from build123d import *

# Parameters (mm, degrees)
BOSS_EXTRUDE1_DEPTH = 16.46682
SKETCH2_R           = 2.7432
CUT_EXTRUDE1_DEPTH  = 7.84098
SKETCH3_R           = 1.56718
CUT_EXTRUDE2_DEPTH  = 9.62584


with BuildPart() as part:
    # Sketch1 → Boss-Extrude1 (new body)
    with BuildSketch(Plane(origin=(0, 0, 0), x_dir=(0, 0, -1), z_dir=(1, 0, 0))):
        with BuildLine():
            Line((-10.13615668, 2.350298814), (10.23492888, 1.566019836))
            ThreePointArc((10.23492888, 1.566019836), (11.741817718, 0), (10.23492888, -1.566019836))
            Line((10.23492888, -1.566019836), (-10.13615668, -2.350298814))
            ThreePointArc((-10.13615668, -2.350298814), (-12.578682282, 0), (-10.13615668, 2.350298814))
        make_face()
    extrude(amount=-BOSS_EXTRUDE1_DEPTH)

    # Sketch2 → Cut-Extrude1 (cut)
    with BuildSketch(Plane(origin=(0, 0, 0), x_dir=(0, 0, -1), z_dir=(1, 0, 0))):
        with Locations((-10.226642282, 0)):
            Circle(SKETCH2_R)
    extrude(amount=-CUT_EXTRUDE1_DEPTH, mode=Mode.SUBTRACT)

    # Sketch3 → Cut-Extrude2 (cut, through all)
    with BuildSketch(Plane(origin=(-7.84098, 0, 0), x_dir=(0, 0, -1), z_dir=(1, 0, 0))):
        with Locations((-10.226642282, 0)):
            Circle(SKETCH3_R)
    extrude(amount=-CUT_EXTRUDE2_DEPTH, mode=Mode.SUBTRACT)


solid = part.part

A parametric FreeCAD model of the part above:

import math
import FreeCAD as App
import Part
import Sketcher
Q = App.Units.Quantity

doc = App.newDocument("Part")
body = doc.addObject("PartDesign::Body", "Body")

# Sketch on YZ plane
sketch1 = body.newObject("Sketcher::SketchObject", "Sketch")
sketch1.AttachmentSupport = (doc.getObject("YZ_Plane"), [""])
sketch1.MapMode = "FlatFace"
sketch1.addGeometry([
    Part.LineSegment(App.Vector(1.6, -10.2, 0), App.Vector(2.4, 10.1, 0)),
    Part.ArcOfCircle(Part.Circle(App.Vector(0, 10.2, 0), App.Vector(0, 0, 1), 2.4), math.radians(-2), math.radians(182)),
    Part.LineSegment(App.Vector(-2.4, 10.1, 0), App.Vector(-1.6, -10.2, 0)),
    Part.ArcOfCircle(Part.Circle(App.Vector(0, -10.2, 0), App.Vector(0, 0, 1), 1.6), math.radians(-178), math.radians(-2)),
], False)
sketch1.addConstraint([
    Sketcher.Constraint("Tangent", 0, 2, 1, 1),
    Sketcher.Constraint("Tangent", 1, 2, 2, 1),
    Sketcher.Constraint("Tangent", 2, 2, 3, 1),
    Sketcher.Constraint("Tangent", 3, 2, 0, 1),
    Sketcher.Constraint("Symmetric", 0, 2, 1, 2, -2),
    Sketcher.Constraint("Radius", 1, Q("0.0926 in")),
    Sketcher.Constraint("Radius", 3, Q("0.0617 in")),
    Sketcher.Constraint("DistanceY", 3, 3, 1, 3, Q("0.8032 in")),
    Sketcher.Constraint("DistanceY", 2, 2, -1, 1, Q("10.234929 mm")),
])
pad1 = body.newObject("PartDesign::Pad", "Pad")
pad1.Profile = sketch1
pad1.Length = Q("0.6483 in")
pad1.Reversed = True

# Sketch on YZ plane
sketch2 = body.newObject("Sketcher::SketchObject", "Sketch001")
sketch2.AttachmentSupport = (doc.getObject("YZ_Plane"), [""])
sketch2.MapMode = "FlatFace"
sketch2.addGeometry(Part.Circle(App.Vector(0, 10.2, 0), App.Vector(0, 0, 1), 2.7), False)
sketch2.addConstraint([
    Sketcher.Constraint("PointOnObject", 0, 3, -2),
    Sketcher.Constraint("Diameter", 0, Q("0.216 in")),
    Sketcher.Constraint("DistanceY", -1, 1, 0, 3, Q("10.226642 mm")),
])
pocket1 = body.newObject("PartDesign::Pocket", "Pocket")
pocket1.Profile = sketch2
pocket1.Length = Q("0.3087 in")

# Sketch on YZ plane
sketch3 = body.newObject("Sketcher::SketchObject", "Sketch002")
sketch3.AttachmentSupport = (doc.getObject("YZ_Plane"), [""])
sketch3.MapMode = "FlatFace"
sketch3.AttachmentOffset = App.Placement(App.Vector(0, 0, -0.3087 * 25.4), App.Rotation())
sketch3.addGeometry(Part.Circle(App.Vector(0, 10.2, 0), App.Vector(0, 0, 1), 1.6), False)
sketch3.addConstraint([
    Sketcher.Constraint("PointOnObject", 0, 3, -2),
    Sketcher.Constraint("Diameter", 0, Q("0.1234 in")),
    Sketcher.Constraint("DistanceY", -1, 1, 0, 3, Q("10.226642 mm")),
])
pocket2 = body.newObject("PartDesign::Pocket", "Pocket001")
pocket2.Profile = sketch3
pocket2.Type = "ThroughAll"

doc.recompute()
